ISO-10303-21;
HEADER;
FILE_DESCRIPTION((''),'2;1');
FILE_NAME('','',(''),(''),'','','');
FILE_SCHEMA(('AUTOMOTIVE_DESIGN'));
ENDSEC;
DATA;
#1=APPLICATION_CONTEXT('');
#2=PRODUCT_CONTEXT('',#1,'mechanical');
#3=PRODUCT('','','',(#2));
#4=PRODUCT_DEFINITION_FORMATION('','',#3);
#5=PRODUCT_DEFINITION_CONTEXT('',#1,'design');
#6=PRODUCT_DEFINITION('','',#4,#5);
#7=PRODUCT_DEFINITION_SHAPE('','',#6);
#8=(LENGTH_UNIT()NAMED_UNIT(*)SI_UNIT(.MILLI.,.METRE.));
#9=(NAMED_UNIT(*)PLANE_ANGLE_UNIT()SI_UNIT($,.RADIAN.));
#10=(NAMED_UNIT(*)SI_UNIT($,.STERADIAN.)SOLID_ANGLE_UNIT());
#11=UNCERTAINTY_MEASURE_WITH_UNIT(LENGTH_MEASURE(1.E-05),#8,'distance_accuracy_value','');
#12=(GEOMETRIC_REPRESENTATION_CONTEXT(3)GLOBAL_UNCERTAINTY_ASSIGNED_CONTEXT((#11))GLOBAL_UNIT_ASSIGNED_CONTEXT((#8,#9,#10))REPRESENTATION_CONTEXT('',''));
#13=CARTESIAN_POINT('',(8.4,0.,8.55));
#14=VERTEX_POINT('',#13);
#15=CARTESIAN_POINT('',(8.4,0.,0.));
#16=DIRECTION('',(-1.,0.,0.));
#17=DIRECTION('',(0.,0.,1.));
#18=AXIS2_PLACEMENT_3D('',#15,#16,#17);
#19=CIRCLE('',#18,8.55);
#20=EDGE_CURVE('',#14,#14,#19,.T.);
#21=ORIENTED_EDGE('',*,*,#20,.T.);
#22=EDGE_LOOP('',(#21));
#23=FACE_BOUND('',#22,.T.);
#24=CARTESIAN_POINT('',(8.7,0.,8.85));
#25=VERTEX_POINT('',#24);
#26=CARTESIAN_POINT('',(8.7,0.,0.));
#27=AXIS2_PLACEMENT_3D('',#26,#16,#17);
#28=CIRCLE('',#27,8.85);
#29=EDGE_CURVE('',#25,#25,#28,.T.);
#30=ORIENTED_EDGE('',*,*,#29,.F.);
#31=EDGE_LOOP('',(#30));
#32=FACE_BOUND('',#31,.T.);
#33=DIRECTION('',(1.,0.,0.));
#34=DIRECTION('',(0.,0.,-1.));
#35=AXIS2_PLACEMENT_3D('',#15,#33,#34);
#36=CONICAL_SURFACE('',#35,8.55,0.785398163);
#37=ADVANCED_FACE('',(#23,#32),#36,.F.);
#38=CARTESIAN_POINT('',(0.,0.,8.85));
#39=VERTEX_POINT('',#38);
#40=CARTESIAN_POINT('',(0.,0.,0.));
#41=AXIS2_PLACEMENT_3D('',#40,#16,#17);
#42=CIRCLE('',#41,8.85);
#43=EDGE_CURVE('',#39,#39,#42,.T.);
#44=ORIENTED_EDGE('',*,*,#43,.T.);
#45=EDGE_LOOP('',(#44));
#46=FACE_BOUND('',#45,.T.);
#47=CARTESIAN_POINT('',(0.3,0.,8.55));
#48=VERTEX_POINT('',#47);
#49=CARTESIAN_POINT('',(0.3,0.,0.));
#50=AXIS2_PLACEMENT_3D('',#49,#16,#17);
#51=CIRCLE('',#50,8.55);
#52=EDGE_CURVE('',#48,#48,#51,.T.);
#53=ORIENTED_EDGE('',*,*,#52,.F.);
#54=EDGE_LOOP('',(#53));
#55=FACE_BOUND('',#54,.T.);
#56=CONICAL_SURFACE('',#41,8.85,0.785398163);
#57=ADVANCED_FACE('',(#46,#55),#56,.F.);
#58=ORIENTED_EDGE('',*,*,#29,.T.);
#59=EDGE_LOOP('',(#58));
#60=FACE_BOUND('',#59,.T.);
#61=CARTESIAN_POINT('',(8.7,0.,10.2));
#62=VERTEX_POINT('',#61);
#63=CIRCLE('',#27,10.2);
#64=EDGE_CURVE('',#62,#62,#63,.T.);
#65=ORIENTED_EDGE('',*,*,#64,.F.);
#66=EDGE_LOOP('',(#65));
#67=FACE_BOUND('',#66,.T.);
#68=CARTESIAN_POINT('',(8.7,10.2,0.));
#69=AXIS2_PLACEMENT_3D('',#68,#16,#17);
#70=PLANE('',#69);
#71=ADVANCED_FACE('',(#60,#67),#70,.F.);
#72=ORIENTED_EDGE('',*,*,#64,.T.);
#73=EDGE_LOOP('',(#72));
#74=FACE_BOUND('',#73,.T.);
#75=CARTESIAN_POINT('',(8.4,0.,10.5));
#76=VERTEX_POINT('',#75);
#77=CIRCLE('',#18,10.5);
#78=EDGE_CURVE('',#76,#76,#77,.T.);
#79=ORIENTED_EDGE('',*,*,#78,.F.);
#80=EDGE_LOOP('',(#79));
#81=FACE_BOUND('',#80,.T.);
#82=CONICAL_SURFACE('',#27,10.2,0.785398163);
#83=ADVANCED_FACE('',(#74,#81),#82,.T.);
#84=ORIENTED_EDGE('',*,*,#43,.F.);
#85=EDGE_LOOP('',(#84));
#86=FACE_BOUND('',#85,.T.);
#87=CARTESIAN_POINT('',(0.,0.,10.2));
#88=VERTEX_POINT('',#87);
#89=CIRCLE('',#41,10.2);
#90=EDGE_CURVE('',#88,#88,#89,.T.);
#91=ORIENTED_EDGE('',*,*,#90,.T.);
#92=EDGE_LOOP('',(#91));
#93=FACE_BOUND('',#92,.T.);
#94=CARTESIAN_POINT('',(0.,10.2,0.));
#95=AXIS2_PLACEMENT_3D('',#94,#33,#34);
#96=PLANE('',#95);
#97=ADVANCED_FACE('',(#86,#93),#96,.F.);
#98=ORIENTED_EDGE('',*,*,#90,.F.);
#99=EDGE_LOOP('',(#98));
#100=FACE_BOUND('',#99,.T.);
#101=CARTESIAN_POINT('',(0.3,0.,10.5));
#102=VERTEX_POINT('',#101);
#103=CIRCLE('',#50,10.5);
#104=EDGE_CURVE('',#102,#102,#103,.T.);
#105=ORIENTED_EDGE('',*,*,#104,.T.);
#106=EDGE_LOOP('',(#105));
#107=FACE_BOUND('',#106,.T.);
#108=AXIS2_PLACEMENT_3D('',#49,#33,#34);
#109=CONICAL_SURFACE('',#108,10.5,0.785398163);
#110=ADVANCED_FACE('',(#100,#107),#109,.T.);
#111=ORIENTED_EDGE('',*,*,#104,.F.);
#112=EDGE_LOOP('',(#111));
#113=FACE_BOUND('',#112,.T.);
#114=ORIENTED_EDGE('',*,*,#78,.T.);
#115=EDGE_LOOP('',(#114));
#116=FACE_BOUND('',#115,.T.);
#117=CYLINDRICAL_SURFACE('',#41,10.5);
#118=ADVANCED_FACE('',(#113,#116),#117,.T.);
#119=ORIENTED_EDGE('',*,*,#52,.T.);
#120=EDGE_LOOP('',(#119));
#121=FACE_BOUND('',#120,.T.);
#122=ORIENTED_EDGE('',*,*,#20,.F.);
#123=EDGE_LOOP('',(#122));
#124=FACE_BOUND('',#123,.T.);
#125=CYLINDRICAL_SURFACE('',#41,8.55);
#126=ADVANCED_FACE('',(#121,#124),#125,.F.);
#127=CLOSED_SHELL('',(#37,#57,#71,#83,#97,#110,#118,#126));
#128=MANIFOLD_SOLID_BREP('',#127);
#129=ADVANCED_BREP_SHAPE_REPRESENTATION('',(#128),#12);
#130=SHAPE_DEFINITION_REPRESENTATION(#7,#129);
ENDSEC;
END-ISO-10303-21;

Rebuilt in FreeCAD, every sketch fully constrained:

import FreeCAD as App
import Part
import Sketcher
Q = App.Units.Quantity


def add_polygon(sketch, points):
    """Adds a closed chain of lines whose ends are joined by coincident constraints."""
    first, n = sketch.GeometryCount, len(points)
    for a, b in zip(points, points[1:] + points[:1]):
        sketch.addGeometry(Part.LineSegment(App.Vector(*a, 0), App.Vector(*b, 0)), False)
    for i in range(n):
        sketch.addConstraint(Sketcher.Constraint("Coincident", first + i, 2, first + (i + 1) % n, 1))

doc = App.newDocument("Part")
body = doc.addObject("PartDesign::Body", "Body")

sketch1 = body.newObject("Sketcher::SketchObject", "Sketch")
sketch1.AttachmentSupport = (doc.getObject("XY_Plane"), [""])
sketch1.MapMode = "FlatFace"
add_polygon(sketch1, [(8.7, 10.2), (8.4, 10.5), (0.3, 10.5), (0, 10.2), (0, 8.85), (0.3, 8.55), (8.4, 8.55), (8.7, 8.85)])
sketch1.addConstraint([
    Sketcher.Constraint("Horizontal", 1),
    Sketcher.Constraint("Vertical", 3),
    Sketcher.Constraint("Horizontal", 5),
    Sketcher.Constraint("Vertical", 7),
    Sketcher.Constraint("PointOnObject", 2, 2, -2),
    Sketcher.Constraint("Perpendicular", 0, 2),
    Sketcher.Constraint("Perpendicular", 2, 4),
    Sketcher.Constraint("Perpendicular", 4, 6),
    Sketcher.Constraint("Horizontal", 3, 2, 6, 2),
    Sketcher.Constraint("Horizontal", 2, 2, 7, 2),
    Sketcher.Constraint("Vertical", 1, 2, 4, 2),
    Sketcher.Constraint("Vertical", 0, 2, 5, 2),
    Sketcher.Constraint("DistanceX", 1, 2, 1, 1, Q("8.1 mm")),
    Sketcher.Constraint("DistanceY", 3, 2, 3, 1, Q("1.35 mm")),
    Sketcher.Constraint("DistanceX", -1, 1, 0, 2, Q("8.4 mm")),
    Sketcher.Constraint("DistanceY", -1, 1, 0, 2, Q("10.5 mm")),
])
revolution = body.newObject("PartDesign::Revolution", "Revolution")
revolution.Profile = sketch1
revolution.ReferenceAxis = (sketch1, ["H_Axis"])
revolution.Angle = 360

doc.recompute()
